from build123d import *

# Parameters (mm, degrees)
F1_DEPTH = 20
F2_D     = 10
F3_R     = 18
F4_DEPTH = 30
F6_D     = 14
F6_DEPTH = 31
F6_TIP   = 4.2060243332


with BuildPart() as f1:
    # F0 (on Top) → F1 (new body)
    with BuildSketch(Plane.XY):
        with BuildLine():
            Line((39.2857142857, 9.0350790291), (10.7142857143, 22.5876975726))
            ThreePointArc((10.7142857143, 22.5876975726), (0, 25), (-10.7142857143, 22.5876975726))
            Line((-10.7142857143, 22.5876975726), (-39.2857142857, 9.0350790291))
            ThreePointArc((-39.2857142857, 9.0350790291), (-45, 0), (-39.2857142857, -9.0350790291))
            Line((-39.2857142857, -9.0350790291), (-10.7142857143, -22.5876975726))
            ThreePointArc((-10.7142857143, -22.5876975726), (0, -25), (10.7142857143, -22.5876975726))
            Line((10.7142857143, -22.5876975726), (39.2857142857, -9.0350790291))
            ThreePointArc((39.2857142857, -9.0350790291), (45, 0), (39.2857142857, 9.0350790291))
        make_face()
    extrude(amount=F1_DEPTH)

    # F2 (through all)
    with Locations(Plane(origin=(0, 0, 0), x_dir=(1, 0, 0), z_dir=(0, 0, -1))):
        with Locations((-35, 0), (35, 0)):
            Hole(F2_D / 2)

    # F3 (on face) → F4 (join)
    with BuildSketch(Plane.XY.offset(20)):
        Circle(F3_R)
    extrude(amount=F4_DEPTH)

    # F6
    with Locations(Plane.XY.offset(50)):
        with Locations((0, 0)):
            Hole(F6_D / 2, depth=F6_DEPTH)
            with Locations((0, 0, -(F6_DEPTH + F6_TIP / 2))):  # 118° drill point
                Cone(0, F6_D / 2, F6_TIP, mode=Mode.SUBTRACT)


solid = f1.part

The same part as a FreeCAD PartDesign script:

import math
import FreeCAD as App
import Part
import Sketcher
from FreeCAD import Vector

doc = App.newDocument("Part")
body = doc.addObject("PartDesign::Body", "Body")

# Sketch on XY plane
sketch1 = body.newObject("Sketcher::SketchObject", "Sketch")
sketch1.AttachmentSupport = (doc.getObject("XY_Plane"), [""])
sketch1.MapMode = "FlatFace"
sketch1.addGeometry([
    Part.LineSegment(Vector(39, 9, 0), Vector(11, 23, 0)),  # 0
    Part.ArcOfCircle(Part.Circle(Vector(0, 0, 0), Vector(0, 0, 1), 25), math.radians(65), math.radians(115)),  # 1
    Part.LineSegment(Vector(-11, 23, 0), Vector(-39, 9, 0)),  # 2
    Part.ArcOfCircle(Part.Circle(Vector(-35, 0, 0), Vector(0, 0, 1), 10), math.radians(115), math.radians(245)),  # 3
    Part.LineSegment(Vector(-39, -9, 0), Vector(-11, -23, 0)),  # 4
    Part.ArcOfCircle(Part.Circle(Vector(0, 0, 0), Vector(0, 0, 1), 25), math.radians(-115), math.radians(-65)),  # 5
    Part.LineSegment(Vector(11, -23, 0), Vector(39, -9, 0)),  # 6
    Part.ArcOfCircle(Part.Circle(Vector(35, 0, 0), Vector(0, 0, 1), 10), math.radians(-65), math.radians(65)),  # 7
], False)
sketch1.addConstraint([
    Sketcher.Constraint("Tangent", 0, 2, 1, 1),
    Sketcher.Constraint("Tangent", 1, 2, 2, 1),
    Sketcher.Constraint("Tangent", 2, 2, 3, 1),
    Sketcher.Constraint("Tangent", 3, 2, 4, 1),
    Sketcher.Constraint("Tangent", 4, 2, 5, 1),
    Sketcher.Constraint("Tangent", 5, 2, 6, 1),
    Sketcher.Constraint("Tangent", 6, 2, 7, 1),
    Sketcher.Constraint("Tangent", 7, 2, 0, 1),
    Sketcher.Constraint("Coincident", 1, 3, -1, 1),
    Sketcher.Constraint("Coincident", 5, 3, -1, 1),
    Sketcher.Constraint("Equal", 1, 5),
    Sketcher.Constraint("Equal", 3, 7),
    Sketcher.Constraint("Symmetric", 3, 3, 7, 3, -1, 1),
    Sketcher.Constraint("PointOnObject", 3, 3, -1),
    Sketcher.Constraint("Radius", 1, 25.0),
    Sketcher.Constraint("Radius", 3, 10.0),
    Sketcher.Constraint("DistanceX", 3, 3, -1, 1, 35.0),
])
pad1 = body.newObject("PartDesign::Pad", "Pad")
pad1.Profile = sketch1
pad1.Length = 20

# Sketch on XY plane
sketch2 = body.newObject("Sketcher::SketchObject", "Sketch001")
sketch2.AttachmentSupport = (doc.getObject("XY_Plane"), [""])
sketch2.MapMode = "FlatFace"
sketch2.addGeometry([
    Part.Circle(Vector(-35, 0, 0), Vector(0, 0, 1), 5),
    Part.Circle(Vector(35, 0, 0), Vector(0, 0, 1), 5),
], False)
sketch2.addConstraint([
    Sketcher.Constraint("Equal", 0, 1),
    Sketcher.Constraint("Symmetric", 0, 3, 1, 3, -1, 1),
    Sketcher.Constraint("PointOnObject", 0, 3, -1),
    Sketcher.Constraint("Diameter", 0, 10.0),
    Sketcher.Constraint("DistanceX", 0, 3, -1, 1, 35.0),
])
doc.recompute()
hole = body.newObject("PartDesign::Hole", "Hole")
hole.Profile = sketch2
hole.ThreadType = "None"
hole.Diameter = 10
hole.DepthType = "ThroughAll"
hole.Reversed = True

# Sketch on XY plane
sketch3 = body.newObject("Sketcher::SketchObject", "Sketch002")
sketch3.AttachmentSupport = (doc.getObject("XY_Plane"), [""])
sketch3.MapMode = "FlatFace"
sketch3.AttachmentOffset = App.Placement(Vector(0, 0, 20), App.Rotation())
sketch3.addGeometry(Part.Circle(Vector(0, 0, 0), Vector(0, 0, 1), 18), False)
sketch3.addConstraint([
    Sketcher.Constraint("Coincident", 0, 3, -1, 1),
    Sketcher.Constraint("Diameter", 0, 36.0),
])
pad2 = body.newObject("PartDesign::Pad", "Pad001")
pad2.Profile = sketch3
pad2.Length = 30

# Sketch on XY plane
sketch4 = body.newObject("Sketcher::SketchObject", "Sketch003")
sketch4.AttachmentSupport = (doc.getObject("XY_Plane"), [""])
sketch4.MapMode = "FlatFace"
sketch4.AttachmentOffset = App.Placement(Vector(0, 0, 50), App.Rotation())
sketch4.addGeometry(Part.Circle(Vector(0, 0, 0), Vector(0, 0, 1), 7), False)
sketch4.addConstraint([
    Sketcher.Constraint("Coincident", 0, 3, -1, 1),
    Sketcher.Constraint("Diameter", 0, 14.0),
])
doc.recompute()
hole2 = body.newObject("PartDesign::Hole", "Hole001")
hole2.Profile = sketch4
hole2.ThreadType = "None"
hole2.Diameter = 14
hole2.DepthType = "Dimension"
hole2.Depth = 31
hole2.DrillPoint = "Angled"
hole2.DrillPointAngle = 118

doc.recompute()
